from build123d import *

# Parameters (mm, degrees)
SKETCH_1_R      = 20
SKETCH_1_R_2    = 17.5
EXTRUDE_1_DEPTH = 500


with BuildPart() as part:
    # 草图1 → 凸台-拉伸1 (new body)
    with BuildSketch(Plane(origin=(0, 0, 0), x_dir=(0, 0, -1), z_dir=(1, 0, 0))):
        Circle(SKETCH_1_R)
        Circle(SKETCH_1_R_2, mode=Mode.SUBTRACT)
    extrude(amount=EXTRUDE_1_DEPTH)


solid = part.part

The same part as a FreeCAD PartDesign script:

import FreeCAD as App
import Part
import Sketcher

V = App.Vector
Q = App.Units.Quantity

doc = App.newDocument("Part")
body = doc.addObject("PartDesign::Body", "Body")

sketch1 = body.newObject("Sketcher::SketchObject", "Sketch")
sketch1.AttachmentSupport = (doc.getObject("YZ_Plane"), [""])
sketch1.MapMode = "FlatFace"
sketch1.addGeometry(Part.Circle(V(0, 0, 0), V(0, 0, 1), 20), False)
sketch1.addGeometry(Part.Circle(V(0, 0, 0), V(0, 0, 1), 17.5), False)
sketch1.addConstraint(Sketcher.Constraint("Coincident", 0, 3, -1, 1))
sketch1.addConstraint(Sketcher.Constraint("Coincident", 1, 3, -1, 1))
sketch1.addConstraint(Sketcher.Constraint("Diameter", 0, Q("40 mm")))
sketch1.addConstraint(Sketcher.Constraint("Diameter", 1, Q("35 mm")))
pad1 = body.newObject("PartDesign::Pad", "Pad")
pad1.Profile = sketch1
pad1.Length = 500

doc.recompute()
